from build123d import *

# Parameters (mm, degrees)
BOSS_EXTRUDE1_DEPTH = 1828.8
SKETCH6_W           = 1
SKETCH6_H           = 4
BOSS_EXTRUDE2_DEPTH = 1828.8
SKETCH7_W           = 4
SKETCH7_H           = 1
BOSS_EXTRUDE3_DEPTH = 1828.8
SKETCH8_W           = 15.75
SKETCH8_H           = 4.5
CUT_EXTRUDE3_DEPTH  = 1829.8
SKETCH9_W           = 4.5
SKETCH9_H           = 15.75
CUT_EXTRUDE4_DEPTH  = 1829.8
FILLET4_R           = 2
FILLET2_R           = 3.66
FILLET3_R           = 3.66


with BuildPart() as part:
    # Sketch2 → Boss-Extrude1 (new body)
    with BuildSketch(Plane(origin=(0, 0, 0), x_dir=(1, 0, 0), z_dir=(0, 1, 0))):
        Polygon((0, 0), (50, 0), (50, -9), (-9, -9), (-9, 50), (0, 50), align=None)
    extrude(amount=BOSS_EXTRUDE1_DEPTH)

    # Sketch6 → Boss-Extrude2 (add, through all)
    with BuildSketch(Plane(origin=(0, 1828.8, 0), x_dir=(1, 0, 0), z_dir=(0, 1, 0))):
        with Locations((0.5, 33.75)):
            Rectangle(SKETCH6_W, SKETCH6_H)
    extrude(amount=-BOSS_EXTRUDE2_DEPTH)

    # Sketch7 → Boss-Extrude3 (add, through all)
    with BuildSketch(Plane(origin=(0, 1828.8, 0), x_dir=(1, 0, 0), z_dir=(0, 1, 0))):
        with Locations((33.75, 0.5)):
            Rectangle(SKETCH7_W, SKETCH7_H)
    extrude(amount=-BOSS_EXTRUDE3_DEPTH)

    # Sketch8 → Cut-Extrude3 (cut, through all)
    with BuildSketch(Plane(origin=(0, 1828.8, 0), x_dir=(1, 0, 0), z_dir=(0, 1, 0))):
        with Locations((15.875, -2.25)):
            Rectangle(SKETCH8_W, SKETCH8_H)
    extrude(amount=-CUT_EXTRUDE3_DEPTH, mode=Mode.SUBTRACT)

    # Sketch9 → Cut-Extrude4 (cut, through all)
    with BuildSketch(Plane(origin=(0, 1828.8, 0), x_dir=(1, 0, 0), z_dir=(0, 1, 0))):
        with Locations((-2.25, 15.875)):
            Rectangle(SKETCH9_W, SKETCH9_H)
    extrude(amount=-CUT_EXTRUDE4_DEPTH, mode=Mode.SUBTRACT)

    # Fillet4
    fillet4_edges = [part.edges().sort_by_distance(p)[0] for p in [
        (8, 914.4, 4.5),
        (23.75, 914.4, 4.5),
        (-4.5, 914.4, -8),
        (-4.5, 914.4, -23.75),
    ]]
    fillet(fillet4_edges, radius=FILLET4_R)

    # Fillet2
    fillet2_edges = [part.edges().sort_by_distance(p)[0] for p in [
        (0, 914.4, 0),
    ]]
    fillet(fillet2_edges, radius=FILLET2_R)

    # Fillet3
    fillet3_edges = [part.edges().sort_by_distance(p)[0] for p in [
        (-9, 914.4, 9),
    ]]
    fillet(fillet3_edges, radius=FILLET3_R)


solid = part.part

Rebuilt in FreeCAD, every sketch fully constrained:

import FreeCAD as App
import Part
import Sketcher
Q = App.Units.Quantity


def edges_at(feature, points):
    """Names of the edges that pass closest to the given points."""
    edges = feature.Shape.Edges
    near = lambda p: min(range(len(edges)), key=lambda i: edges[i].distToShape(Part.Vertex(*p))[0])
    return sorted({f"Edge{near(p) + 1}" for p in points})


def add_polygon(sketch, points):
    """Adds a closed chain of lines whose ends are joined by coincident constraints."""
    first, n = sketch.GeometryCount, len(points)
    for a, b in zip(points, points[1:] + points[:1]):
        sketch.addGeometry(Part.LineSegment(App.Vector(*a, 0), App.Vector(*b, 0)), False)
    for i in range(n):
        sketch.addConstraint(Sketcher.Constraint("Coincident", first + i, 2, first + (i + 1) % n, 1))

doc = App.newDocument("Part")
body = doc.addObject("PartDesign::Body", "Body")

# Sketch on XZ plane
sketch1 = doc.addObject("Sketcher::SketchObject", "Sketch")
body.addObject(sketch1)
sketch1.AttachmentSupport = (doc.XZ_Plane, [""])
sketch1.MapMode = "FlatFace"
add_polygon(sketch1, [(50, 0), (0, 0), (0, -50), (-9, -50), (-9, 9), (50, 9)])  # lines 0-5
sketch1.addConstraint([
    Sketcher.Constraint("Horizontal", 0),
    Sketcher.Constraint("Vertical", 1),
    Sketcher.Constraint("Horizontal", 2),
    Sketcher.Constraint("Vertical", 3),
    Sketcher.Constraint("Horizontal", 4),
    Sketcher.Constraint("Vertical", 5),
    Sketcher.Constraint("Coincident", 0, 2, -1, 1),
    Sketcher.Constraint("Equal", 0, 1),
    Sketcher.Constraint("Equal", 4, 3),
    Sketcher.Constraint("DistanceX", 0, 2, 0, 1, Q("50 mm")),
    Sketcher.Constraint("DistanceX", 2, 2, 2, 1, Q("9 mm")),
])
pad1 = doc.addObject("PartDesign::Pad", "Pad")
body.addObject(pad1)
pad1.Profile = sketch1
pad1.Length = 1828.8
pad1.Reversed = True

# Sketch on XZ plane
sketch2 = doc.addObject("Sketcher::SketchObject", "Sketch001")
body.addObject(sketch2)
sketch2.AttachmentSupport = (doc.XZ_Plane, [""])
sketch2.MapMode = "FlatFace"
sketch2.AttachmentOffset = App.Placement(App.Vector(0, 0, -1828.8), App.Rotation())
add_polygon(sketch2, [(0, -35.8), (0, -31.8), (1, -31.8), (1, -35.8)])  # lines 0-3
sketch2.addConstraint([
    Sketcher.Constraint("Vertical", 0),
    Sketcher.Constraint("Horizontal", 1),
    Sketcher.Constraint("Vertical", 2),
    Sketcher.Constraint("Horizontal", 3),
    Sketcher.Constraint("PointOnObject", 0, 2, -2),
    Sketcher.Constraint("DistanceX", 1, 1, 1, 2, Q("1 mm")),
    Sketcher.Constraint("DistanceY", 0, 1, 0, 2, Q("4 mm")),
    Sketcher.Constraint("DistanceY", 0, 2, -1, 1, Q("31.75 mm")),
])
pad2 = doc.addObject("PartDesign::Pad", "Pad001")
body.addObject(pad2)
pad2.Profile = sketch2
pad2.Length = 1828.8

# Sketch on XZ plane
sketch3 = doc.addObject("Sketcher::SketchObject", "Sketch002")
body.addObject(sketch3)
sketch3.AttachmentSupport = (doc.XZ_Plane, [""])
sketch3.MapMode = "FlatFace"
sketch3.AttachmentOffset = App.Placement(App.Vector(0, 0, -1828.8), App.Rotation())
add_polygon(sketch3, [(31.8, -1), (31.8, 0), (35.8, 0), (35.8, -1)])  # lines 0-3
sketch3.addConstraint([
    Sketcher.Constraint("Vertical", 0),
    Sketcher.Constraint("Horizontal", 1),
    Sketcher.Constraint("Vertical", 2),
    Sketcher.Constraint("Horizontal", 3),
    Sketcher.Constraint("PointOnObject", 0, 2, -1),
    Sketcher.Constraint("DistanceX", 1, 1, 1, 2, Q("4 mm")),
    Sketcher.Constraint("DistanceY", 0, 1, 0, 2, Q("1 mm")),
    Sketcher.Constraint("DistanceX", -1, 1, 0, 2, Q("31.75 mm")),
])
pad3 = doc.addObject("PartDesign::Pad", "Pad002")
body.addObject(pad3)
pad3.Profile = sketch3
pad3.Length = 1828.8

# Sketch on XZ plane
sketch4 = doc.addObject("Sketcher::SketchObject", "Sketch003")
body.addObject(sketch4)
sketch4.AttachmentSupport = (doc.XZ_Plane, [""])
sketch4.MapMode = "FlatFace"
sketch4.AttachmentOffset = App.Placement(App.Vector(0, 0, -1828.8), App.Rotation())
add_polygon(sketch4, [(8, 0), (8, 4.5), (23.8, 4.5), (23.8, 0)])  # lines 0-3
sketch4.addConstraint([
    Sketcher.Constraint("Vertical", 0),
    Sketcher.Constraint("Horizontal", 1),
    Sketcher.Constraint("Vertical", 2),
    Sketcher.Constraint("Horizontal", 3),
    Sketcher.Constraint("PointOnObject", 2, 2, -1),
    Sketcher.Constraint("DistanceY", 0, 1, 0, 2, Q("4.5 mm")),
    Sketcher.Constraint("DistanceX", -1, 1, 0, 2, Q("8 mm")),
    Sketcher.Constraint("DistanceX", 1, 1, 1, 2, Q("15.75 mm")),
])
pocket1 = doc.addObject("PartDesign::Pocket", "Pocket")
body.addObject(pocket1)
pocket1.Profile = sketch4
pocket1.Type = "ThroughAll"
pocket1.Reversed = True

# Sketch on XZ plane
sketch5 = doc.addObject("Sketcher::SketchObject", "Sketch004")
body.addObject(sketch5)
sketch5.AttachmentSupport = (doc.XZ_Plane, [""])
sketch5.MapMode = "FlatFace"
sketch5.AttachmentOffset = App.Placement(App.Vector(0, 0, -1828.8), App.Rotation())
add_polygon(sketch5, [(-4.5, -23.8), (-4.5, -8), (0, -8), (0, -23.8)])  # lines 0-3
sketch5.addConstraint([
    Sketcher.Constraint("Vertical", 0),
    Sketcher.Constraint("Horizontal", 1),
    Sketcher.Constraint("Vertical", 2),
    Sketcher.Constraint("Horizontal", 3),
    Sketcher.Constraint("PointOnObject", 1, 2, -2),
    Sketcher.Constraint("DistanceX", 1, 1, 1, 2, Q("4.5 mm")),
    Sketcher.Constraint("DistanceY", 0, 2, -1, 1, Q("8 mm")),
    Sketcher.Constraint("DistanceY", 0, 1, 0, 2, Q("15.75 mm")),
])
pocket2 = doc.addObject("PartDesign::Pocket", "Pocket001")
body.addObject(pocket2)
pocket2.Profile = sketch5
pocket2.Type = "ThroughAll"
pocket2.Reversed = True
doc.recompute()

fillet = doc.addObject("PartDesign::Fillet", "Fillet")
body.addObject(fillet)
fillet.Base = (pocket2, edges_at(pocket2, [
    (8, 914.4, 4.5),
    (23.75, 914.4, 4.5),
    (-4.5, 914.4, -8),
    (-4.5, 914.4, -23.75),
]))
fillet.Radius = 2
doc.recompute()

fillet2 = doc.addObject("PartDesign::Fillet", "Fillet001")
body.addObject(fillet2)
fillet2.Base = (fillet, edges_at(fillet, [(0, 914.4, 0)]))
fillet2.Radius = 3.66
doc.recompute()

fillet3 = doc.addObject("PartDesign::Fillet", "Fillet002")
body.addObject(fillet3)
fillet3.Base = (fillet2, edges_at(fillet2, [(-9, 914.4, 9)]))
fillet3.Radius = 3.66

doc.recompute()
